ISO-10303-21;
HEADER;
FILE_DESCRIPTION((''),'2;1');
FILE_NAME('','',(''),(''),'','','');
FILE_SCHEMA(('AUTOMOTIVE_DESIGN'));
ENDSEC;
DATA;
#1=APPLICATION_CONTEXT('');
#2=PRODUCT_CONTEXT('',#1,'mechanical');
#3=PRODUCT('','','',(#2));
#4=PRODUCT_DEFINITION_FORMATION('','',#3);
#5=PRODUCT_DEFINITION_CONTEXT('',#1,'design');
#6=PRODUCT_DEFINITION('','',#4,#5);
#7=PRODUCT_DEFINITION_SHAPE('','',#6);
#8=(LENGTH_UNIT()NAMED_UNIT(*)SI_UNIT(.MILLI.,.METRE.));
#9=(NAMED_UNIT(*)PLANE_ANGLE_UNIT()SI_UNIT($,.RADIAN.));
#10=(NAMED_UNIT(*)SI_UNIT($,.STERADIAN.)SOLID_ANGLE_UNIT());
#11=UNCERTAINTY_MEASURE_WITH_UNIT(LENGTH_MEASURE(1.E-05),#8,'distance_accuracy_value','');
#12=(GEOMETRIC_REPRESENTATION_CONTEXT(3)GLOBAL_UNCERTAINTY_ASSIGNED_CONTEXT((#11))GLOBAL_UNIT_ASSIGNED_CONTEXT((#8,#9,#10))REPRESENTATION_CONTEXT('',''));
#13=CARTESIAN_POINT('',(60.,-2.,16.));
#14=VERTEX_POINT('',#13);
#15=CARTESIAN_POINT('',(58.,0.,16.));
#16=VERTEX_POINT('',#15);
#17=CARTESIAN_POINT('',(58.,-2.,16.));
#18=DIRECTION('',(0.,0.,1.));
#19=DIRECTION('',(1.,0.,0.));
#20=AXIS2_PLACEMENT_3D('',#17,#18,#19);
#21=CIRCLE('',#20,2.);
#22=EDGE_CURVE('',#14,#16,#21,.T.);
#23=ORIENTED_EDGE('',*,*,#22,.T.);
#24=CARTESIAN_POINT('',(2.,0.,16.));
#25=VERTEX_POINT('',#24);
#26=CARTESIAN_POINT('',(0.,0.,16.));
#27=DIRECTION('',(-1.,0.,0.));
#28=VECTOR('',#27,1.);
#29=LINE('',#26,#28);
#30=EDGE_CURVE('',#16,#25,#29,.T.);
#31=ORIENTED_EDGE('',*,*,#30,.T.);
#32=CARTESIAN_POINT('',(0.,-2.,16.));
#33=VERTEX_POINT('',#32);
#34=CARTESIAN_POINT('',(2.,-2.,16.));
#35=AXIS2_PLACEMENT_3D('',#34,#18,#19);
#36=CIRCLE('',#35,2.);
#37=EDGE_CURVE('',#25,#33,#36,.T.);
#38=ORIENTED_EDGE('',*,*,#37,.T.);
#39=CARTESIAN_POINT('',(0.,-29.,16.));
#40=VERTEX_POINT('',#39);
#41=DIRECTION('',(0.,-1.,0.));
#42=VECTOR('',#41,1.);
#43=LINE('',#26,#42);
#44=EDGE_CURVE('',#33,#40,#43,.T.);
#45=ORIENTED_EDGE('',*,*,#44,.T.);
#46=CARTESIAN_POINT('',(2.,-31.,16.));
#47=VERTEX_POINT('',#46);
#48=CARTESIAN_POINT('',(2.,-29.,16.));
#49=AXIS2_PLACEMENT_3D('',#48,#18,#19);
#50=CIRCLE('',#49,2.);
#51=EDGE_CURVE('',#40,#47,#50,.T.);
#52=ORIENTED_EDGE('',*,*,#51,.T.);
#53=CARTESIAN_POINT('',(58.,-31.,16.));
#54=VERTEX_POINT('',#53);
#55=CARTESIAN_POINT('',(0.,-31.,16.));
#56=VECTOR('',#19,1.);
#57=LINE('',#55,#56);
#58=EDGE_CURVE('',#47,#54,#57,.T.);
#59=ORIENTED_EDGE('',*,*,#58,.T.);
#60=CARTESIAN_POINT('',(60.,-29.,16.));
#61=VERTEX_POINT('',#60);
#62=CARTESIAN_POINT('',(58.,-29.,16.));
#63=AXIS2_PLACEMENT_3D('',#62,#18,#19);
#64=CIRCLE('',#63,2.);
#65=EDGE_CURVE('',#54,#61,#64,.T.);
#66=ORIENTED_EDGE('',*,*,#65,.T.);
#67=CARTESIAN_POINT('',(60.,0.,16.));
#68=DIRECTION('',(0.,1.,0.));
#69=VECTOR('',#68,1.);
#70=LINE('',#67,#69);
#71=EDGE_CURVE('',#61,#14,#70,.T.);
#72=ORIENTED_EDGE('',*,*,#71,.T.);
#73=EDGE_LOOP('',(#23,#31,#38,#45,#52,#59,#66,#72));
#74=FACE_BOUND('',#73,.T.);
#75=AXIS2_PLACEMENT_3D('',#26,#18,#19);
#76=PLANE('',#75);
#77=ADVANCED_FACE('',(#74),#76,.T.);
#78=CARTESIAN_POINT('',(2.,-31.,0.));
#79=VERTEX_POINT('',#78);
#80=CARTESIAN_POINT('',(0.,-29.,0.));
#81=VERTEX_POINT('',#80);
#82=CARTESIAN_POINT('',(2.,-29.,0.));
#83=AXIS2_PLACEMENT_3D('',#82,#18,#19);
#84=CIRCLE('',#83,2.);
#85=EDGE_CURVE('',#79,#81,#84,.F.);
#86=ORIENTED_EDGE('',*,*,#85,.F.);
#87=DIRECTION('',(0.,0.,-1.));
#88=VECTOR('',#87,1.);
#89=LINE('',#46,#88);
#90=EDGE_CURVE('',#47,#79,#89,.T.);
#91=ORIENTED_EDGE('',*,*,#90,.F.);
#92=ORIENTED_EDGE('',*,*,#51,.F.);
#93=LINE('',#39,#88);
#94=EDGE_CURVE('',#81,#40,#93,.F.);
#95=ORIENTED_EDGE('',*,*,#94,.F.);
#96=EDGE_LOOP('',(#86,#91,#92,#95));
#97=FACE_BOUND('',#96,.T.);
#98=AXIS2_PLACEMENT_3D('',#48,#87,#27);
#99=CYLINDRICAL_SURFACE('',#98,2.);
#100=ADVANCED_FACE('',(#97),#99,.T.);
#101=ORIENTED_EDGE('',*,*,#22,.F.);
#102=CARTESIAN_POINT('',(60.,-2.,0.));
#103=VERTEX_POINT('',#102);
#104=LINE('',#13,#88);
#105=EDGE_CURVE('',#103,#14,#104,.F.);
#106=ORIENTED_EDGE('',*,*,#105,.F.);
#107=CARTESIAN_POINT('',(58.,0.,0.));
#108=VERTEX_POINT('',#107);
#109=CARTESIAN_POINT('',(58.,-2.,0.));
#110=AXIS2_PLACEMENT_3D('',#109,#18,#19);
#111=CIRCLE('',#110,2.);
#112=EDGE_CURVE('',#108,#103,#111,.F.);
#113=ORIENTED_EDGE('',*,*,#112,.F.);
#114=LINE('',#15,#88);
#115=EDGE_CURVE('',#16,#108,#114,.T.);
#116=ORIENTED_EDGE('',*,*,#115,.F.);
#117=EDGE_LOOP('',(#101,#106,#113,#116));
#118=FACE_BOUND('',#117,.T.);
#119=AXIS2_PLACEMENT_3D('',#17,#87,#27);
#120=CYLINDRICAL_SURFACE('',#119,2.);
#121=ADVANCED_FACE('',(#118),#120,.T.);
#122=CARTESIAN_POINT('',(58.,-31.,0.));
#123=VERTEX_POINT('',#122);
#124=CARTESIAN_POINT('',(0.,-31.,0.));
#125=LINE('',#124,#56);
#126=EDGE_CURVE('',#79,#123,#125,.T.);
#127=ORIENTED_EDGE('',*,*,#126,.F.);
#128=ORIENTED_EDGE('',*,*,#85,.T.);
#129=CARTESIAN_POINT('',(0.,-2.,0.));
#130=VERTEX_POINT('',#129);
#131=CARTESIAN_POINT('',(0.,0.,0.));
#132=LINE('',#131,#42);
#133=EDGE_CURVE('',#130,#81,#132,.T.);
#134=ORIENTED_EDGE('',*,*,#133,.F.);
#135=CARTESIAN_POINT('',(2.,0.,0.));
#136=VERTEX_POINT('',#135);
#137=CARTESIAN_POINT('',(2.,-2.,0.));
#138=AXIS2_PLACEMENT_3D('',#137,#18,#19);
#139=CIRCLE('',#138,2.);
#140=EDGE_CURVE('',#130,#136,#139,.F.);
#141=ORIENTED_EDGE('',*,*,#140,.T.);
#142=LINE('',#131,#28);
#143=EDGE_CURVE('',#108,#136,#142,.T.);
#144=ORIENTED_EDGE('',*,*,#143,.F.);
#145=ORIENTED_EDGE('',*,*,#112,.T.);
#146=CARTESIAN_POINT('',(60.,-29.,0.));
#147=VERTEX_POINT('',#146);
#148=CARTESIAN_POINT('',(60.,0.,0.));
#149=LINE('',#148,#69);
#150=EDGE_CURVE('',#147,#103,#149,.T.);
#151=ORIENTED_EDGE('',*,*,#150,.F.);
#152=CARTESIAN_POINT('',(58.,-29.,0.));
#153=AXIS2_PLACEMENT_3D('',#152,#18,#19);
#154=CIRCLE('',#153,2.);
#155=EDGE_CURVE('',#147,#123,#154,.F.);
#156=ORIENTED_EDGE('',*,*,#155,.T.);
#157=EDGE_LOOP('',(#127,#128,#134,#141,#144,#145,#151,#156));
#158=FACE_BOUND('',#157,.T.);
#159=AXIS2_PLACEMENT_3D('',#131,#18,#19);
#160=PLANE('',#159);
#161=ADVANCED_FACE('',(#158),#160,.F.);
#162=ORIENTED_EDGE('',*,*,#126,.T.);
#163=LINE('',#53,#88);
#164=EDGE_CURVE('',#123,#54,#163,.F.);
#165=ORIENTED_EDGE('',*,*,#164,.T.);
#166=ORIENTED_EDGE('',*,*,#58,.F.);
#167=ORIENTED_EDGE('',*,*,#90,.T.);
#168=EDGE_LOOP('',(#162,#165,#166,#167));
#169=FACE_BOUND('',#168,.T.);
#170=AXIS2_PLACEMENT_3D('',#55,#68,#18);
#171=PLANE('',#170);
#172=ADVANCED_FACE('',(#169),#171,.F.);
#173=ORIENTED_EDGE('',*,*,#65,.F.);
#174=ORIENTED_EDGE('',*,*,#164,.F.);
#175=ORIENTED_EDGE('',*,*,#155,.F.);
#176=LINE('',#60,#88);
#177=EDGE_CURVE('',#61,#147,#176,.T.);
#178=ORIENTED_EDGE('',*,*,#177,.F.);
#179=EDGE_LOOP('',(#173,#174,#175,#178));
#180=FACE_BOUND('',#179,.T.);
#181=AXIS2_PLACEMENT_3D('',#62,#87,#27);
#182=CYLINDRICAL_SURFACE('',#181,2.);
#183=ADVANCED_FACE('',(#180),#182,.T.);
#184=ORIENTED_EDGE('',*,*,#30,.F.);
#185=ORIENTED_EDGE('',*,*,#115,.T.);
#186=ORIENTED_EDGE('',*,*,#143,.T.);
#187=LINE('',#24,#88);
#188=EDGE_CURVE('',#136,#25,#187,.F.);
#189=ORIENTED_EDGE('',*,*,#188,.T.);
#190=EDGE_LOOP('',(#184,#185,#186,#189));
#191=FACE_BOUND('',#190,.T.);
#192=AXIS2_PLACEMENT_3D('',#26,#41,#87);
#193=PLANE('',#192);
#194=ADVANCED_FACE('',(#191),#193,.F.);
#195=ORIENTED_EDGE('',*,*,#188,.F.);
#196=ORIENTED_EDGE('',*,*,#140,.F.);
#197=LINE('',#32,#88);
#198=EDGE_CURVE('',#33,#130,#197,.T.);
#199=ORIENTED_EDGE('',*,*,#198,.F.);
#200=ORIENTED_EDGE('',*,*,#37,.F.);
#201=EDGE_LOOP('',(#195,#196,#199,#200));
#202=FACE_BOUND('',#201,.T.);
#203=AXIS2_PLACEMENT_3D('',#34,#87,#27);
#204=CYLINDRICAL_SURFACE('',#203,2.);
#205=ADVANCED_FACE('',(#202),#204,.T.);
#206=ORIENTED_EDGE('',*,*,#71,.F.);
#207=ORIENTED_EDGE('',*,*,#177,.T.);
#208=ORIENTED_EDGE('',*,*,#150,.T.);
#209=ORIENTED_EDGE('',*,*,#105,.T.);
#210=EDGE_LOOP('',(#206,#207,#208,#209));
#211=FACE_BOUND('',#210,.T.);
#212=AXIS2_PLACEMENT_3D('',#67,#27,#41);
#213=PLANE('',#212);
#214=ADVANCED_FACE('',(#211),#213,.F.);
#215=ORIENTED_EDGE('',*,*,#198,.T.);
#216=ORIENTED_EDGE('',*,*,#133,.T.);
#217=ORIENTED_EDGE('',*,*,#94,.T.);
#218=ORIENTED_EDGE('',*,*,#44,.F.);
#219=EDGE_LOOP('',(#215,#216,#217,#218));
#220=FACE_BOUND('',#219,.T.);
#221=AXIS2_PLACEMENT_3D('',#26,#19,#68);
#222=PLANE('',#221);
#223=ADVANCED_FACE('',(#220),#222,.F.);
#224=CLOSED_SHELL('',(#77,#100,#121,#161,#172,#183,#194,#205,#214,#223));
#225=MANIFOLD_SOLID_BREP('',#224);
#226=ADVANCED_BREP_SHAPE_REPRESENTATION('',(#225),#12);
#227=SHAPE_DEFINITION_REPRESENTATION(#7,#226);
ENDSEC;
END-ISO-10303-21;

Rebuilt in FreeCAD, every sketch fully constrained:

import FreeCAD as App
import Part
import Sketcher
Q = App.Units.Quantity


def edges_at(feature, points):
    """Names of the edges that pass closest to the given points."""
    edges = feature.Shape.Edges
    near = lambda p: min(range(len(edges)), key=lambda i: edges[i].distToShape(Part.Vertex(*p))[0])
    return sorted({f"Edge{near(p) + 1}" for p in points})

doc = App.newDocument("Part")
body = doc.addObject("PartDesign::Body", "Body")

sketch1 = doc.addObject("Sketcher::SketchObject", "Sketch")
body.addObject(sketch1)
sketch1.AttachmentSupport = (doc.XY_Plane, [""])
sketch1.MapMode = "FlatFace"
sketch1.addGeometry(Part.LineSegment(App.Vector(0, 0, 0), App.Vector(0, -31, 0)), False)
sketch1.addGeometry(Part.LineSegment(App.Vector(0, -31, 0), App.Vector(60, -31, 0)), False)
sketch1.addGeometry(Part.LineSegment(App.Vector(60, -31, 0), App.Vector(60, 0, 0)), False)
sketch1.addGeometry(Part.LineSegment(App.Vector(60, 0, 0), App.Vector(0, 0, 0)), False)
sketch1.addConstraint(Sketcher.Constraint("Coincident", 0, 2, 1, 1))
sketch1.addConstraint(Sketcher.Constraint("Coincident", 1, 2, 2, 1))
sketch1.addConstraint(Sketcher.Constraint("Coincident", 2, 2, 3, 1))
sketch1.addConstraint(Sketcher.Constraint("Coincident", 3, 2, 0, 1))
sketch1.addConstraint(Sketcher.Constraint("Vertical", 0))
sketch1.addConstraint(Sketcher.Constraint("Horizontal", 1))
sketch1.addConstraint(Sketcher.Constraint("Vertical", 2))
sketch1.addConstraint(Sketcher.Constraint("Horizontal", 3))
sketch1.addConstraint(Sketcher.Constraint("Coincident", 3, 2, -1, 1))
sketch1.addConstraint(Sketcher.Constraint("DistanceX", 1, 1, 1, 2, Q("60 mm")))
sketch1.addConstraint(Sketcher.Constraint("DistanceY", 0, 2, 0, 1, Q("31 mm")))
pad1 = doc.addObject("PartDesign::Pad", "Pad")
body.addObject(pad1)
pad1.Profile = sketch1
pad1.Length = 16
doc.recompute()

fillet = doc.addObject("PartDesign::Fillet", "Fillet")
body.addObject(fillet)
fillet.Base = (pad1, edges_at(pad1, [
    (0, 0, 8),
    (60, 0, 8),
    (60, -31, 8),
    (0, -31, 8),
]))
fillet.Radius = 2

doc.recompute()
